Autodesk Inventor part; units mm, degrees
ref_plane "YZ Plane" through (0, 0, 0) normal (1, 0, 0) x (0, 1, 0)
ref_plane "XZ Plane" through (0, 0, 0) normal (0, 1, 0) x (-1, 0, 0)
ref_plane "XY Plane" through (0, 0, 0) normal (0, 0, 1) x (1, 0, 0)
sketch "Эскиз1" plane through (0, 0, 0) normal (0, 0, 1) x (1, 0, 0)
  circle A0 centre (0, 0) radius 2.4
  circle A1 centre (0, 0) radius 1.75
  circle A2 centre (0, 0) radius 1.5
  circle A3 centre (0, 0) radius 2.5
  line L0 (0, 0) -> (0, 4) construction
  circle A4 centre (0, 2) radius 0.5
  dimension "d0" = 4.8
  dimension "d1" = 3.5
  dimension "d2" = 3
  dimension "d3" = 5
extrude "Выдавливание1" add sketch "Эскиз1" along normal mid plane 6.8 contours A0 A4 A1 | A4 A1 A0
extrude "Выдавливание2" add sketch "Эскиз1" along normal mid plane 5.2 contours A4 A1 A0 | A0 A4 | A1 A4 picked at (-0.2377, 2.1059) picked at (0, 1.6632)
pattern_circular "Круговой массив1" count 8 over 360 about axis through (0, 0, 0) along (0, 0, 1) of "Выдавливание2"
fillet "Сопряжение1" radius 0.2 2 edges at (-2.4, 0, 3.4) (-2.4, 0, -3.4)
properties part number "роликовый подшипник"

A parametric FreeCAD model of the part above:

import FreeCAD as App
import Part
import Sketcher
from FreeCAD import Vector
Q = App.Units.Quantity


def edges_at(feature, points):
    """Names of the edges that pass closest to the given points."""
    edges = feature.Shape.Edges
    near = lambda p: min(range(len(edges)), key=lambda i: edges[i].distToShape(Part.Vertex(*p))[0])
    return sorted({f"Edge{near(p) + 1}" for p in points})

doc = App.newDocument("Part")
body = doc.addObject("PartDesign::Body", "Body")

sketch1 = doc.addObject("Sketcher::SketchObject", "Sketch")
body.addObject(sketch1)
sketch1.AttachmentSupport = (doc.XY_Plane, [""])
sketch1.MapMode = "FlatFace"
sketch1.addGeometry([
    Part.Circle(Vector(0, 0, 0), Vector(0, 0, 1), 2.4),
    Part.Circle(Vector(0, 0, 0), Vector(0, 0, 1), 1.8),
], False)
sketch1.addConstraint([
    Sketcher.Constraint("Coincident", 0, 3, -1, 1),
    Sketcher.Constraint("Coincident", 1, 3, -1, 1),
    Sketcher.Constraint("Diameter", 0, Q("4.8 mm")),
    Sketcher.Constraint("Diameter", 1, Q("3.5 mm")),
])
pad1 = doc.addObject("PartDesign::Pad", "Pad")
body.addObject(pad1)
pad1.Profile = sketch1
pad1.Length = 6.8
pad1.Midplane = True

sketch2 = doc.addObject("Sketcher::SketchObject", "Sketch001")
body.addObject(sketch2)
sketch2.AttachmentSupport = (doc.XY_Plane, [""])
sketch2.MapMode = "FlatFace"
sketch2.addGeometry(Part.Circle(Vector(0, 2, 0), Vector(0, 0, 1), 0.5), False)
sketch2.addConstraint([
    Sketcher.Constraint("PointOnObject", 0, 3, -2),
    Sketcher.Constraint("Diameter", 0, Q("1 mm")),
    Sketcher.Constraint("DistanceY", -1, 1, 0, 3, Q("2 mm")),
])
pad2 = doc.addObject("PartDesign::Pad", "Pad001")
body.addObject(pad2)
pad2.Profile = sketch2
pad2.Length = 5.2
pad2.Midplane = True
doc.recompute()

polarpattern = doc.addObject("PartDesign::PolarPattern", "PolarPattern")
body.addObject(polarpattern)
polarpattern.Originals = [pad2]
polarpattern.Axis = (doc.Z_Axis, [""])
polarpattern.Angle = 360
polarpattern.Occurrences = 8
body.Tip = polarpattern
doc.recompute()

fillet = doc.addObject("PartDesign::Fillet", "Fillet")
body.addObject(fillet)
fillet.Base = (polarpattern, edges_at(polarpattern, [(-2.4, 0, 3.4), (-2.4, 0, -3.4)]))
fillet.Radius = 0.2

doc.recompute()
